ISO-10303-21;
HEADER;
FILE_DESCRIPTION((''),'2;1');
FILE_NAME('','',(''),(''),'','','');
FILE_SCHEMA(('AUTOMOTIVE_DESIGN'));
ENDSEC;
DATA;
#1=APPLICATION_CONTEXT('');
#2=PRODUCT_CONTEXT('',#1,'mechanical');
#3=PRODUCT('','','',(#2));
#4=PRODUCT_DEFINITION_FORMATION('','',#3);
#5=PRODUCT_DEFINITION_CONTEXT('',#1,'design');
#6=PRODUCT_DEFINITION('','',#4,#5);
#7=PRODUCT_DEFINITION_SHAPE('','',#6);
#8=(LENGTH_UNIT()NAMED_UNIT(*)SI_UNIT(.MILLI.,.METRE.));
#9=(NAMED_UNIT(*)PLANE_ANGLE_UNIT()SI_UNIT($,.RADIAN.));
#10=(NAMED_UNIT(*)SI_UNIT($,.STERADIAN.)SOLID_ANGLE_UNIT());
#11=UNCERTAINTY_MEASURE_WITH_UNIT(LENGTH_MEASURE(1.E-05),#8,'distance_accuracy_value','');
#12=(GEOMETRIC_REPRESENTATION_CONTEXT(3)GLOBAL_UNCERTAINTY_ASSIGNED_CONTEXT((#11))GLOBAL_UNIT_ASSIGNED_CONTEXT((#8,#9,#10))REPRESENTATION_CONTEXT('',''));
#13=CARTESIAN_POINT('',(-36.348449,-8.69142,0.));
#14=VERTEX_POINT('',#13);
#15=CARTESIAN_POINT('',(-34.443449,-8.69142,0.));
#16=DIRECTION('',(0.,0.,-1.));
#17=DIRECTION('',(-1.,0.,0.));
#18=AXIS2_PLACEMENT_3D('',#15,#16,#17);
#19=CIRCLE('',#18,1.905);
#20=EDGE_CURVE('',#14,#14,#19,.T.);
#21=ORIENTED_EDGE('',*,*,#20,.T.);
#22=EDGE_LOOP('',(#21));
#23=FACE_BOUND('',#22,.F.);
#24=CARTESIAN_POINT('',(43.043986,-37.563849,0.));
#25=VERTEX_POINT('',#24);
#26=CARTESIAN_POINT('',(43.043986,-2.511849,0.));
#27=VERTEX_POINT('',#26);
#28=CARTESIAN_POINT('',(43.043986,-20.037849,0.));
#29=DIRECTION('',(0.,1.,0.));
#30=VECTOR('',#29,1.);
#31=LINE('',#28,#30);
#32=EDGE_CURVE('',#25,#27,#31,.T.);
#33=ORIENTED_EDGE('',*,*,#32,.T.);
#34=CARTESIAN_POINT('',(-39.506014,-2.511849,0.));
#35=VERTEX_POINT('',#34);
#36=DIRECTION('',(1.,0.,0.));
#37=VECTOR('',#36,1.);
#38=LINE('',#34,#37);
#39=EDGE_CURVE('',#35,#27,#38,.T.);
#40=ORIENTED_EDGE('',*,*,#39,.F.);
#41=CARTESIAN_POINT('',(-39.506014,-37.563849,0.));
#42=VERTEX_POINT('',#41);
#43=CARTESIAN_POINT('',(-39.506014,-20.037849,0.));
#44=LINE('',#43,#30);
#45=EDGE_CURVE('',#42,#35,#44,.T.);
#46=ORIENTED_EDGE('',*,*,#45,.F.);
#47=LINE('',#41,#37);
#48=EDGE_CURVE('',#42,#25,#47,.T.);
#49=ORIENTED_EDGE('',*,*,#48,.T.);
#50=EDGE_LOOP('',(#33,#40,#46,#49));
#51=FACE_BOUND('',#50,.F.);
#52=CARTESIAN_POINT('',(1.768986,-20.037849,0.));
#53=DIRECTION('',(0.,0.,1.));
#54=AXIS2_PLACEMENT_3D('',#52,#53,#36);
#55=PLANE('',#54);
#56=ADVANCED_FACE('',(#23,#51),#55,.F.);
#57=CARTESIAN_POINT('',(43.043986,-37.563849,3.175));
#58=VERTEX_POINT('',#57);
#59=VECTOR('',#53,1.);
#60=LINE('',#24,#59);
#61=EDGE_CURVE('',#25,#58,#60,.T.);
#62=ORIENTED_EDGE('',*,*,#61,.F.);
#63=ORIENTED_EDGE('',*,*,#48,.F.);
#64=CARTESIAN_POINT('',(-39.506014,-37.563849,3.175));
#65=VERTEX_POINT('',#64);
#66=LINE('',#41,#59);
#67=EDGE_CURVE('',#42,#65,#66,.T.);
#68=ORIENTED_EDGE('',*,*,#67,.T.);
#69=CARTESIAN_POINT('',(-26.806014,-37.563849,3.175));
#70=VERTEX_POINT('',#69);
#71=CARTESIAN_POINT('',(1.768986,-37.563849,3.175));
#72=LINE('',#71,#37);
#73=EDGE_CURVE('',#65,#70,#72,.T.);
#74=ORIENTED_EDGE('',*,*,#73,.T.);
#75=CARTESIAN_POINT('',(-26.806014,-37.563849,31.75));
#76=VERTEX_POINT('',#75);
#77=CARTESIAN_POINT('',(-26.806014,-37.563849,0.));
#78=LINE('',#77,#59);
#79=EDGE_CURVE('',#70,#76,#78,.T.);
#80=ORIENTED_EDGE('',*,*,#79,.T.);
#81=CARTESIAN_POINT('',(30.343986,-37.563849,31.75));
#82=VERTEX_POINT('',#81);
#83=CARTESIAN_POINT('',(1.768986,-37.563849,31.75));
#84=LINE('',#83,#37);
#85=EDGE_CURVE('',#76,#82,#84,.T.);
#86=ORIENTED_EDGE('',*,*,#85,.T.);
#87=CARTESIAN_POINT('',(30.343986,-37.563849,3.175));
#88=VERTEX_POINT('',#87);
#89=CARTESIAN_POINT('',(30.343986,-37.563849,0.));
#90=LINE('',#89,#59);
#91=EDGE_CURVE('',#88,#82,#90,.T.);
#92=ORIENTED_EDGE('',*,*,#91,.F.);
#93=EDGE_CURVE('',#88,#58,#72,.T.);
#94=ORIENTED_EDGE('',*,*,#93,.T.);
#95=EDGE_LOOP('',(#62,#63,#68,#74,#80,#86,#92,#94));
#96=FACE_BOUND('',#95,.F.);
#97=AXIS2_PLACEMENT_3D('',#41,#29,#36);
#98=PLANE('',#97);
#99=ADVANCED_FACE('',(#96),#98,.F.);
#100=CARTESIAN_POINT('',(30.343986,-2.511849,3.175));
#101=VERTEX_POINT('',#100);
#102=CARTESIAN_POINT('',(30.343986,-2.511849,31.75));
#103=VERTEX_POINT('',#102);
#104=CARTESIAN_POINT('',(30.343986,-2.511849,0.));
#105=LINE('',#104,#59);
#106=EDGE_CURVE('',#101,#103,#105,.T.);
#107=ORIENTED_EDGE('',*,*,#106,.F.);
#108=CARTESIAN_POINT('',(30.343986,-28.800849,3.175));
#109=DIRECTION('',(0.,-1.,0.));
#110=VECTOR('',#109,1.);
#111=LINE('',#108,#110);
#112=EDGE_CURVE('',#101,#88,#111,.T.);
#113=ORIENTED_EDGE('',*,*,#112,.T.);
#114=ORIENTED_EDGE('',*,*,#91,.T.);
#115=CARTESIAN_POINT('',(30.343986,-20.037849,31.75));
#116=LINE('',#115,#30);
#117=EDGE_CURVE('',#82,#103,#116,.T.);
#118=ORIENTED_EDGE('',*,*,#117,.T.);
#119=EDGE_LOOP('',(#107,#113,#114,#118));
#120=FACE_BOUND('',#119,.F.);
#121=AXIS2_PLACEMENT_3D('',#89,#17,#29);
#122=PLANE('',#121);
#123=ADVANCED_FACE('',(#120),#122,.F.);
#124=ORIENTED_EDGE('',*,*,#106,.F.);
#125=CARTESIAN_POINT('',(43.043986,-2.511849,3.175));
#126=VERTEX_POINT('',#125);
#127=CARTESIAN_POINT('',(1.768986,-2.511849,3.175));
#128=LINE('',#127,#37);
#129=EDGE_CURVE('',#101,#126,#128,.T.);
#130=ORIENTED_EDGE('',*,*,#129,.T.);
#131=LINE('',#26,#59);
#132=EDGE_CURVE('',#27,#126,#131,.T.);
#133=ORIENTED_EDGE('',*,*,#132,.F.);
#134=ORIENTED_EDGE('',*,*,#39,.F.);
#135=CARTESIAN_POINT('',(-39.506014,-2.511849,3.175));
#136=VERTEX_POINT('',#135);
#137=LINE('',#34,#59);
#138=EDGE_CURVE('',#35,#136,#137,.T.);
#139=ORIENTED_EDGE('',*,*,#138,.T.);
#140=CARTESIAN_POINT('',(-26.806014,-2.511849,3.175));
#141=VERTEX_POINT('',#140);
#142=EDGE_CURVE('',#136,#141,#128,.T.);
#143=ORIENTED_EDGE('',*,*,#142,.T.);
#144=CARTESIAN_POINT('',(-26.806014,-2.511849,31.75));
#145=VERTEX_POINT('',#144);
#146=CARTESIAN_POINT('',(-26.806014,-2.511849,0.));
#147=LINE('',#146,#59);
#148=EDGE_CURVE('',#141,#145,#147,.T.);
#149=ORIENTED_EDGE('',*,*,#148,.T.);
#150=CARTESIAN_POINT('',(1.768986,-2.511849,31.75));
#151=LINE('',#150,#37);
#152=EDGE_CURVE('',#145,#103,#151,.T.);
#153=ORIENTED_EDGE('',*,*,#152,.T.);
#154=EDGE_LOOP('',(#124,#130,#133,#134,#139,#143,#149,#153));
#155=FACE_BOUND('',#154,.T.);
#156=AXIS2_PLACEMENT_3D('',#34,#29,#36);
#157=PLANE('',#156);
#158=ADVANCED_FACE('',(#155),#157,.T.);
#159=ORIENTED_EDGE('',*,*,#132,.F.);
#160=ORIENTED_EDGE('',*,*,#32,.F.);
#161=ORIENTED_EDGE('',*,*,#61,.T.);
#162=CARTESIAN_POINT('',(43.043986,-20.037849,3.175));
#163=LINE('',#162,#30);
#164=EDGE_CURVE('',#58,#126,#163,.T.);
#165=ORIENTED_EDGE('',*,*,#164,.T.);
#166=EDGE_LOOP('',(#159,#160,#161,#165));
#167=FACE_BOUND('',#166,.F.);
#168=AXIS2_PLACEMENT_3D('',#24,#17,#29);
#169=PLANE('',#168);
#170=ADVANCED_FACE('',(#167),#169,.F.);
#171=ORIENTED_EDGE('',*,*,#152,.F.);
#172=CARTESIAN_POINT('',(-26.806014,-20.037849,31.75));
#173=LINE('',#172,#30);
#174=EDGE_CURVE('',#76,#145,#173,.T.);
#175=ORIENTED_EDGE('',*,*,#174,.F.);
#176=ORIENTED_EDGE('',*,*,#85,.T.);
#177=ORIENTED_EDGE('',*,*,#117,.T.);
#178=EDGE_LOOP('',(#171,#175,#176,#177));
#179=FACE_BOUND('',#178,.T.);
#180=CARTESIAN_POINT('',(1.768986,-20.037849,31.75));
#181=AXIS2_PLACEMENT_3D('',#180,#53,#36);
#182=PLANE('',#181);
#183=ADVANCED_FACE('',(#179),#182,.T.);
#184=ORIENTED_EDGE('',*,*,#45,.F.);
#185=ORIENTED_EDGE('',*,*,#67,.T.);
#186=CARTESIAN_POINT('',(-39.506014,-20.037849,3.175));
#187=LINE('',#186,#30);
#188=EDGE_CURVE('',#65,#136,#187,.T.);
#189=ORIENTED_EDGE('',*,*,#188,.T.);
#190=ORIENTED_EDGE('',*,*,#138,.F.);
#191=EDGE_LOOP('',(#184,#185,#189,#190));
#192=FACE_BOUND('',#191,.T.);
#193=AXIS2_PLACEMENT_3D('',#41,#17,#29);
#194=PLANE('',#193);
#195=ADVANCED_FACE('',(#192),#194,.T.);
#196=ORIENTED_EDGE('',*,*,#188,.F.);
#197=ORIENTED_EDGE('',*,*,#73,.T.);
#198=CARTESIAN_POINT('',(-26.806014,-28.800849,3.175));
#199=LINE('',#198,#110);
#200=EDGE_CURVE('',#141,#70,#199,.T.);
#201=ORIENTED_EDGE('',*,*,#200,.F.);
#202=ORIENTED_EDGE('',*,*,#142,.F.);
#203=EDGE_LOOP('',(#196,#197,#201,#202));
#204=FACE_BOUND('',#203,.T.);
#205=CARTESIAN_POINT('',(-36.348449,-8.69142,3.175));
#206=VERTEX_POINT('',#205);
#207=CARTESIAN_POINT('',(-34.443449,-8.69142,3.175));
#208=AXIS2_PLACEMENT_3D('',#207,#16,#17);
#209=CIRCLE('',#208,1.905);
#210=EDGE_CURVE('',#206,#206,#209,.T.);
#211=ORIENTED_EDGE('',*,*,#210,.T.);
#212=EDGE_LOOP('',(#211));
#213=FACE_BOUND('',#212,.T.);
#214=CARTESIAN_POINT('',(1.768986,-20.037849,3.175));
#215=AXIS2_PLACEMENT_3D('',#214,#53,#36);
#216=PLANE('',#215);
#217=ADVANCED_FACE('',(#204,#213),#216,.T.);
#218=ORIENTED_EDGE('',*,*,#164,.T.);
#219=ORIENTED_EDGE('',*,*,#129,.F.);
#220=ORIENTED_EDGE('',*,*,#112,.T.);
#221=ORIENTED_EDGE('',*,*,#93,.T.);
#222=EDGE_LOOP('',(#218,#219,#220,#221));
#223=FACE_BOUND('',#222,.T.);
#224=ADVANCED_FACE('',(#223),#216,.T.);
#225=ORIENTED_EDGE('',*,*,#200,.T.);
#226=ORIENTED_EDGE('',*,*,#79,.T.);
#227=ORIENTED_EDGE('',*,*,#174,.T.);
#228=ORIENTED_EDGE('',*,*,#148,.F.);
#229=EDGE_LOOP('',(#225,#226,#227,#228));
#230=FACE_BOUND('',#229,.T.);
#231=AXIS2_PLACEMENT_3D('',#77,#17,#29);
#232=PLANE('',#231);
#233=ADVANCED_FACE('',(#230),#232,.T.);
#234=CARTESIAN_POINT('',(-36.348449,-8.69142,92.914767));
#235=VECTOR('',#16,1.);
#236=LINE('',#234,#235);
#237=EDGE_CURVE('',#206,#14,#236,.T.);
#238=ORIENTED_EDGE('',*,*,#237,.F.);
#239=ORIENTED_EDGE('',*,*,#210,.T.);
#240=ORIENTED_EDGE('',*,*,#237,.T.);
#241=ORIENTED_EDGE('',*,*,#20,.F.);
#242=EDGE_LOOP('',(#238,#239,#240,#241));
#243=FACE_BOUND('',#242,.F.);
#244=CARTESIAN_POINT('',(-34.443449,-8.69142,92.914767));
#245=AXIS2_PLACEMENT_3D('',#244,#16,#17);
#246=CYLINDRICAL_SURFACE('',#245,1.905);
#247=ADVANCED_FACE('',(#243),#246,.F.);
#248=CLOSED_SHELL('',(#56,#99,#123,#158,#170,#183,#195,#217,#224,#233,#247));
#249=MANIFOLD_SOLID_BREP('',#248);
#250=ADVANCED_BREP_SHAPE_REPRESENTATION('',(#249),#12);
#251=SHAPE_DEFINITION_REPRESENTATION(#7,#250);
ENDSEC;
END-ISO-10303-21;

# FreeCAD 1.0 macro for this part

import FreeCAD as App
import Part
import Sketcher
Q = App.Units.Quantity


def add_polygon(sketch, points):
    """Adds a closed chain of lines whose ends are joined by coincident constraints."""
    first, n = sketch.GeometryCount, len(points)
    for a, b in zip(points, points[1:] + points[:1]):
        sketch.addGeometry(Part.LineSegment(App.Vector(*a, 0), App.Vector(*b, 0)), False)
    for i in range(n):
        sketch.addConstraint(Sketcher.Constraint("Coincident", first + i, 2, first + (i + 1) % n, 1))

doc = App.newDocument("Part")
body = doc.addObject("PartDesign::Body", "Body")

# Sketch on XY plane
sketch1 = doc.addObject("Sketcher::SketchObject", "Sketch")
body.addObject(sketch1)
sketch1.AttachmentSupport = (doc.XY_Plane, [""])
sketch1.MapMode = "FlatFace"
add_polygon(sketch1, [(-39.506014, -2.511849), (-39.506014, -37.563849), (43.043986, -37.563849), (43.043986, -2.511849)])  # lines 0-3
sketch1.addConstraint([
    Sketcher.Constraint("Vertical", 0),
    Sketcher.Constraint("Horizontal", 1),
    Sketcher.Constraint("Vertical", 2),
    Sketcher.Constraint("Horizontal", 3),
    Sketcher.Constraint("DistanceX", 1, 1, 1, 2, Q("3.25 in")),
    Sketcher.Constraint("DistanceY", 0, 2, 0, 1, Q("1.38 in")),
    Sketcher.Constraint("DistanceY", 0, 2, -1, 1, 37.563849),
    Sketcher.Constraint("DistanceX", 0, 2, -1, 1, 39.506014),
])
pad1 = doc.addObject("PartDesign::Pad", "Pad")
body.addObject(pad1)
pad1.Profile = sketch1
pad1.Length = Q("0.125 in")

# Sketch on XY plane
sketch2 = doc.addObject("Sketcher::SketchObject", "Sketch001")
body.addObject(sketch2)
sketch2.AttachmentSupport = (doc.XY_Plane, [""])
sketch2.MapMode = "FlatFace"
sketch2.AttachmentOffset = App.Placement(App.Vector(0, 0, 0.125 * 25.4), App.Rotation())
sketch2.addGeometry(Part.Circle(App.Vector(-34.443449, -8.69142, 0), App.Vector(0, 0, 1), 1.905), False)
sketch2.addConstraint([
    Sketcher.Constraint("Diameter", 0, Q("0.15 in")),
    Sketcher.Constraint("DistanceX", 0, 3, -1, 1, 34.443449),
    Sketcher.Constraint("DistanceY", 0, 3, -1, 1, 8.69142),
])
doc.recompute()
hole = doc.addObject("PartDesign::Hole", "Hole")
body.addObject(hole)
hole.Profile = sketch2
hole.ThreadType = "None"
hole.Diameter = Q("0.15 in")
hole.DepthType = "ThroughAll"

# Sketch on XY plane
sketch3 = doc.addObject("Sketcher::SketchObject", "Sketch002")
body.addObject(sketch3)
sketch3.AttachmentSupport = (doc.XY_Plane, [""])
sketch3.MapMode = "FlatFace"
add_polygon(sketch3, [(-26.806014, -2.511849), (-26.806014, -37.563849), (30.343986, -37.563849), (30.343986, -2.511849)])  # lines 0-3
sketch3.addConstraint([
    Sketcher.Constraint("Vertical", 0),
    Sketcher.Constraint("Horizontal", 1),
    Sketcher.Constraint("Vertical", 2),
    Sketcher.Constraint("Horizontal", 3),
    Sketcher.Constraint("DistanceX", 1, 1, 1, 2, Q("2.25 in")),
    Sketcher.Constraint("DistanceY", 0, 2, 0, 1, Q("1.38 in")),
    Sketcher.Constraint("DistanceY", 0, 2, -1, 1, 37.563849),
    Sketcher.Constraint("DistanceX", 0, 2, -1, 1, 26.806014),
])
pad2 = doc.addObject("PartDesign::Pad", "Pad001")
body.addObject(pad2)
pad2.Profile = sketch3
pad2.Length = Q("1.25 in")

doc.recompute()
